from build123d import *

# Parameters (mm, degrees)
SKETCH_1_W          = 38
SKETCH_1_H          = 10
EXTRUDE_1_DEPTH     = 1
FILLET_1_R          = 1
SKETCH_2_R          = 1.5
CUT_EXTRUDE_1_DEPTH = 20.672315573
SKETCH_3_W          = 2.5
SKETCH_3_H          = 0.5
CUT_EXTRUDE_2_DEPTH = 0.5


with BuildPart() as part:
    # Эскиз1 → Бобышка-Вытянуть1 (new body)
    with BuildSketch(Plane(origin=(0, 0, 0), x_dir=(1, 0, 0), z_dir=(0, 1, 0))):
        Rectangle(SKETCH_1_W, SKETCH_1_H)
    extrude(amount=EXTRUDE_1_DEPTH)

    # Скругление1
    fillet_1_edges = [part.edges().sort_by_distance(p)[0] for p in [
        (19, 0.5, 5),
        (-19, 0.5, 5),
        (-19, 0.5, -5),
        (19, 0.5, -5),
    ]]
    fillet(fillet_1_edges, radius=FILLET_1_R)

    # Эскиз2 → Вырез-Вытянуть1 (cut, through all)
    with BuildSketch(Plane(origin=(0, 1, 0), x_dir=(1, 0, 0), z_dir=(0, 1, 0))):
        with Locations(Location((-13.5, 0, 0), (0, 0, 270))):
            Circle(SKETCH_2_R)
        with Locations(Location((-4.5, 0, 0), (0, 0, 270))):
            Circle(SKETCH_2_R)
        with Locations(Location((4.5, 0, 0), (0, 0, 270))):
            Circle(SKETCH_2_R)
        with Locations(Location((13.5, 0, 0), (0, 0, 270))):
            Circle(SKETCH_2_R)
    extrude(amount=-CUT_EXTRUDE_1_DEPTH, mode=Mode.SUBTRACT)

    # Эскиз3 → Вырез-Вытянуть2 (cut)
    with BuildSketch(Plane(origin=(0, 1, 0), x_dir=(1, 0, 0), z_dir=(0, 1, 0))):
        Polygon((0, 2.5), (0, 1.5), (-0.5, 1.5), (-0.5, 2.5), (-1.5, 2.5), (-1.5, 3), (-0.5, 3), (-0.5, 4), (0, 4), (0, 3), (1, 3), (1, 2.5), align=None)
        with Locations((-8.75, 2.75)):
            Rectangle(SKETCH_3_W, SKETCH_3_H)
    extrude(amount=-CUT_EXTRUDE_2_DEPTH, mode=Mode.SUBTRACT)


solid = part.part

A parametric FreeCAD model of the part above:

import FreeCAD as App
import Part
import Sketcher

V = App.Vector
Q = App.Units.Quantity


def edges_at(feature, points):
    """Names of the edges that pass closest to the given points."""
    edges = feature.Shape.Edges
    near = lambda p: min(range(len(edges)), key=lambda i: edges[i].distToShape(Part.Vertex(*p))[0])
    return sorted({f"Edge{near(p) + 1}" for p in points})

doc = App.newDocument("Part")
body = doc.addObject("PartDesign::Body", "Body")

# Sketch on XZ plane
sketch1 = body.newObject("Sketcher::SketchObject", "Sketch")
sketch1.AttachmentSupport = (doc.getObject("XZ_Plane"), [""])
sketch1.MapMode = "FlatFace"
sketch1.addGeometry(Part.LineSegment(V(-19, -5, 0), V(-19, 5, 0)), False)
sketch1.addGeometry(Part.LineSegment(V(-19, 5, 0), V(19, 5, 0)), False)
sketch1.addGeometry(Part.LineSegment(V(19, 5, 0), V(19, -5, 0)), False)
sketch1.addGeometry(Part.LineSegment(V(19, -5, 0), V(-19, -5, 0)), False)
sketch1.addConstraint(Sketcher.Constraint("Coincident", 0, 2, 1, 1))
sketch1.addConstraint(Sketcher.Constraint("Coincident", 1, 2, 2, 1))
sketch1.addConstraint(Sketcher.Constraint("Coincident", 2, 2, 3, 1))
sketch1.addConstraint(Sketcher.Constraint("Coincident", 3, 2, 0, 1))
sketch1.addConstraint(Sketcher.Constraint("Vertical", 0))
sketch1.addConstraint(Sketcher.Constraint("Horizontal", 1))
sketch1.addConstraint(Sketcher.Constraint("Vertical", 2))
sketch1.addConstraint(Sketcher.Constraint("Horizontal", 3))
sketch1.addConstraint(Sketcher.Constraint("Symmetric", 0, 2, 2, 2, -1, 1))
sketch1.addConstraint(Sketcher.Constraint("DistanceX", 1, 1, 1, 2, Q("38 mm")))
sketch1.addConstraint(Sketcher.Constraint("DistanceY", 0, 1, 0, 2, Q("10 mm")))
pad1 = body.newObject("PartDesign::Pad", "Pad")
pad1.Profile = sketch1
pad1.Length = 1
pad1.Reversed = True
doc.recompute()

fillet = body.newObject("PartDesign::Fillet", "Fillet")
fillet.Base = (pad1, edges_at(pad1, [
    (19, 0.5, 5),
    (-19, 0.5, 5),
    (-19, 0.5, -5),
    (19, 0.5, -5),
]))
fillet.Radius = 1

# Sketch on XZ plane
sketch2 = body.newObject("Sketcher::SketchObject", "Sketch001")
sketch2.AttachmentSupport = (doc.getObject("XZ_Plane"), [""])
sketch2.MapMode = "FlatFace"
sketch2.AttachmentOffset = App.Placement(V(0, 0, -1), App.Rotation())
sketch2.addGeometry(Part.Circle(V(-13.5, 0, 0), V(0, 0, 1), 1.5), False)
sketch2.addGeometry(Part.Circle(V(-4.5, 0, 0), V(0, 0, 1), 1.5), False)
sketch2.addGeometry(Part.Circle(V(4.5, 0, 0), V(0, 0, 1), 1.5), False)
sketch2.addGeometry(Part.Circle(V(13.5, 0, 0), V(0, 0, 1), 1.5), False)
sketch2.addConstraint(Sketcher.Constraint("Equal", 0, 1))
sketch2.addConstraint(Sketcher.Constraint("Equal", 1, 2))
sketch2.addConstraint(Sketcher.Constraint("Equal", 2, 3))
sketch2.addConstraint(Sketcher.Constraint("Symmetric", 1, 3, 2, 3, -1, 1))
sketch2.addConstraint(Sketcher.Constraint("Symmetric", 0, 3, 3, 3, -1, 1))
sketch2.addConstraint(Sketcher.Constraint("PointOnObject", 0, 3, -1))
sketch2.addConstraint(Sketcher.Constraint("PointOnObject", 1, 3, -1))
sketch2.addConstraint(Sketcher.Constraint("Diameter", 0, Q("3 mm")))
sketch2.addConstraint(Sketcher.Constraint("DistanceX", 0, 3, 1, 3, Q("9 mm")))
sketch2.addConstraint(Sketcher.Constraint("DistanceX", 1, 3, 2, 3, Q("9 mm")))
pocket1 = body.newObject("PartDesign::Pocket", "Pocket")
pocket1.Profile = sketch2
pocket1.Type = "ThroughAll"
pocket1.Reversed = True

# Sketch on XZ plane
sketch3 = body.newObject("Sketcher::SketchObject", "Sketch002")
sketch3.AttachmentSupport = (doc.getObject("XZ_Plane"), [""])
sketch3.MapMode = "FlatFace"
sketch3.AttachmentOffset = App.Placement(V(0, 0, -1), App.Rotation())
sketch3.addGeometry(Part.LineSegment(V(0, -1.5, 0), V(0, -2.5, 0)), False)
sketch3.addGeometry(Part.LineSegment(V(0, -2.5, 0), V(1, -2.5, 0)), False)
sketch3.addGeometry(Part.LineSegment(V(1, -2.5, 0), V(1, -3, 0)), False)
sketch3.addGeometry(Part.LineSegment(V(1, -3, 0), V(0, -3, 0)), False)
sketch3.addGeometry(Part.LineSegment(V(0, -3, 0), V(0, -4, 0)), False)
sketch3.addGeometry(Part.LineSegment(V(0, -4, 0), V(-0.5, -4, 0)), False)
sketch3.addGeometry(Part.LineSegment(V(-0.5, -4, 0), V(-0.5, -3, 0)), False)
sketch3.addGeometry(Part.LineSegment(V(-0.5, -3, 0), V(-1.5, -3, 0)), False)
sketch3.addGeometry(Part.LineSegment(V(-1.5, -3, 0), V(-1.5, -2.5, 0)), False)
sketch3.addGeometry(Part.LineSegment(V(-1.5, -2.5, 0), V(-0.5, -2.5, 0)), False)
sketch3.addGeometry(Part.LineSegment(V(-0.5, -2.5, 0), V(-0.5, -1.5, 0)), False)
sketch3.addGeometry(Part.LineSegment(V(-0.5, -1.5, 0), V(0, -1.5, 0)), False)
sketch3.addGeometry(Part.LineSegment(V(-10, -3, 0), V(-10, -2.5, 0)), False)
sketch3.addGeometry(Part.LineSegment(V(-10, -2.5, 0), V(-7.5, -2.5, 0)), False)
sketch3.addGeometry(Part.LineSegment(V(-7.5, -2.5, 0), V(-7.5, -3, 0)), False)
sketch3.addGeometry(Part.LineSegment(V(-7.5, -3, 0), V(-10, -3, 0)), False)
sketch3.addConstraint(Sketcher.Constraint("Coincident", 0, 2, 1, 1))
sketch3.addConstraint(Sketcher.Constraint("Coincident", 1, 2, 2, 1))
sketch3.addConstraint(Sketcher.Constraint("Coincident", 2, 2, 3, 1))
sketch3.addConstraint(Sketcher.Constraint("Coincident", 3, 2, 4, 1))
sketch3.addConstraint(Sketcher.Constraint("Coincident", 4, 2, 5, 1))
sketch3.addConstraint(Sketcher.Constraint("Coincident", 5, 2, 6, 1))
sketch3.addConstraint(Sketcher.Constraint("Coincident", 6, 2, 7, 1))
sketch3.addConstraint(Sketcher.Constraint("Coincident", 7, 2, 8, 1))
sketch3.addConstraint(Sketcher.Constraint("Coincident", 8, 2, 9, 1))
sketch3.addConstraint(Sketcher.Constraint("Coincident", 9, 2, 10, 1))
sketch3.addConstraint(Sketcher.Constraint("Coincident", 10, 2, 11, 1))
sketch3.addConstraint(Sketcher.Constraint("Coincident", 11, 2, 0, 1))
sketch3.addConstraint(Sketcher.Constraint("Coincident", 12, 2, 13, 1))
sketch3.addConstraint(Sketcher.Constraint("Coincident", 13, 2, 14, 1))
sketch3.addConstraint(Sketcher.Constraint("Coincident", 14, 2, 15, 1))
sketch3.addConstraint(Sketcher.Constraint("Coincident", 15, 2, 12, 1))
sketch3.addConstraint(Sketcher.Constraint("Vertical", 0))
sketch3.addConstraint(Sketcher.Constraint("Horizontal", 1))
sketch3.addConstraint(Sketcher.Constraint("Vertical", 2))
sketch3.addConstraint(Sketcher.Constraint("Horizontal", 3))
sketch3.addConstraint(Sketcher.Constraint("Vertical", 4))
sketch3.addConstraint(Sketcher.Constraint("Horizontal", 5))
sketch3.addConstraint(Sketcher.Constraint("Vertical", 6))
sketch3.addConstraint(Sketcher.Constraint("Horizontal", 7))
sketch3.addConstraint(Sketcher.Constraint("Vertical", 8))
sketch3.addConstraint(Sketcher.Constraint("Horizontal", 9))
sketch3.addConstraint(Sketcher.Constraint("Vertical", 10))
sketch3.addConstraint(Sketcher.Constraint("Horizontal", 11))
sketch3.addConstraint(Sketcher.Constraint("Vertical", 12))
sketch3.addConstraint(Sketcher.Constraint("Horizontal", 13))
sketch3.addConstraint(Sketcher.Constraint("Vertical", 14))
sketch3.addConstraint(Sketcher.Constraint("Horizontal", 15))
sketch3.addConstraint(Sketcher.Constraint("PointOnObject", 0, 2, -2))
sketch3.addConstraint(Sketcher.Constraint("PointOnObject", 3, 2, -2))
sketch3.addConstraint(Sketcher.Constraint("Horizontal", 3, 2, 6, 2))
sketch3.addConstraint(Sketcher.Constraint("Horizontal", 1, 2, 8, 2))
sketch3.addConstraint(Sketcher.Constraint("Horizontal", 9, 2, 12, 2))
sketch3.addConstraint(Sketcher.Constraint("Horizontal", 7, 2, 14, 2))
sketch3.addConstraint(Sketcher.Constraint("Vertical", 6, 2, 9, 2))
sketch3.addConstraint(Sketcher.Constraint("Equal", 3, 7))
sketch3.addConstraint(Sketcher.Constraint("Equal", 9, 0))
sketch3.addConstraint(Sketcher.Constraint("Equal", 11, 2))
sketch3.addConstraint(Sketcher.Constraint("Equal", 0, 4))
sketch3.addConstraint(Sketcher.Constraint("DistanceX", 1, 1, 1, 2, Q("1 mm")))
sketch3.addConstraint(Sketcher.Constraint("DistanceX", 5, 2, 5, 1, Q("0.5 mm")))
sketch3.addConstraint(Sketcher.Constraint("DistanceX", 13, 1, 13, 2, Q("2.5 mm")))
sketch3.addConstraint(Sketcher.Constraint("DistanceY", 2, 2, -1, 1, Q("3 mm")))
sketch3.addConstraint(Sketcher.Constraint("DistanceX", 12, 2, -1, 1, Q("10 mm")))
pocket2 = body.newObject("PartDesign::Pocket", "Pocket001")
pocket2.Profile = sketch3
pocket2.Length = 0.5
pocket2.Reversed = True

doc.recompute()
